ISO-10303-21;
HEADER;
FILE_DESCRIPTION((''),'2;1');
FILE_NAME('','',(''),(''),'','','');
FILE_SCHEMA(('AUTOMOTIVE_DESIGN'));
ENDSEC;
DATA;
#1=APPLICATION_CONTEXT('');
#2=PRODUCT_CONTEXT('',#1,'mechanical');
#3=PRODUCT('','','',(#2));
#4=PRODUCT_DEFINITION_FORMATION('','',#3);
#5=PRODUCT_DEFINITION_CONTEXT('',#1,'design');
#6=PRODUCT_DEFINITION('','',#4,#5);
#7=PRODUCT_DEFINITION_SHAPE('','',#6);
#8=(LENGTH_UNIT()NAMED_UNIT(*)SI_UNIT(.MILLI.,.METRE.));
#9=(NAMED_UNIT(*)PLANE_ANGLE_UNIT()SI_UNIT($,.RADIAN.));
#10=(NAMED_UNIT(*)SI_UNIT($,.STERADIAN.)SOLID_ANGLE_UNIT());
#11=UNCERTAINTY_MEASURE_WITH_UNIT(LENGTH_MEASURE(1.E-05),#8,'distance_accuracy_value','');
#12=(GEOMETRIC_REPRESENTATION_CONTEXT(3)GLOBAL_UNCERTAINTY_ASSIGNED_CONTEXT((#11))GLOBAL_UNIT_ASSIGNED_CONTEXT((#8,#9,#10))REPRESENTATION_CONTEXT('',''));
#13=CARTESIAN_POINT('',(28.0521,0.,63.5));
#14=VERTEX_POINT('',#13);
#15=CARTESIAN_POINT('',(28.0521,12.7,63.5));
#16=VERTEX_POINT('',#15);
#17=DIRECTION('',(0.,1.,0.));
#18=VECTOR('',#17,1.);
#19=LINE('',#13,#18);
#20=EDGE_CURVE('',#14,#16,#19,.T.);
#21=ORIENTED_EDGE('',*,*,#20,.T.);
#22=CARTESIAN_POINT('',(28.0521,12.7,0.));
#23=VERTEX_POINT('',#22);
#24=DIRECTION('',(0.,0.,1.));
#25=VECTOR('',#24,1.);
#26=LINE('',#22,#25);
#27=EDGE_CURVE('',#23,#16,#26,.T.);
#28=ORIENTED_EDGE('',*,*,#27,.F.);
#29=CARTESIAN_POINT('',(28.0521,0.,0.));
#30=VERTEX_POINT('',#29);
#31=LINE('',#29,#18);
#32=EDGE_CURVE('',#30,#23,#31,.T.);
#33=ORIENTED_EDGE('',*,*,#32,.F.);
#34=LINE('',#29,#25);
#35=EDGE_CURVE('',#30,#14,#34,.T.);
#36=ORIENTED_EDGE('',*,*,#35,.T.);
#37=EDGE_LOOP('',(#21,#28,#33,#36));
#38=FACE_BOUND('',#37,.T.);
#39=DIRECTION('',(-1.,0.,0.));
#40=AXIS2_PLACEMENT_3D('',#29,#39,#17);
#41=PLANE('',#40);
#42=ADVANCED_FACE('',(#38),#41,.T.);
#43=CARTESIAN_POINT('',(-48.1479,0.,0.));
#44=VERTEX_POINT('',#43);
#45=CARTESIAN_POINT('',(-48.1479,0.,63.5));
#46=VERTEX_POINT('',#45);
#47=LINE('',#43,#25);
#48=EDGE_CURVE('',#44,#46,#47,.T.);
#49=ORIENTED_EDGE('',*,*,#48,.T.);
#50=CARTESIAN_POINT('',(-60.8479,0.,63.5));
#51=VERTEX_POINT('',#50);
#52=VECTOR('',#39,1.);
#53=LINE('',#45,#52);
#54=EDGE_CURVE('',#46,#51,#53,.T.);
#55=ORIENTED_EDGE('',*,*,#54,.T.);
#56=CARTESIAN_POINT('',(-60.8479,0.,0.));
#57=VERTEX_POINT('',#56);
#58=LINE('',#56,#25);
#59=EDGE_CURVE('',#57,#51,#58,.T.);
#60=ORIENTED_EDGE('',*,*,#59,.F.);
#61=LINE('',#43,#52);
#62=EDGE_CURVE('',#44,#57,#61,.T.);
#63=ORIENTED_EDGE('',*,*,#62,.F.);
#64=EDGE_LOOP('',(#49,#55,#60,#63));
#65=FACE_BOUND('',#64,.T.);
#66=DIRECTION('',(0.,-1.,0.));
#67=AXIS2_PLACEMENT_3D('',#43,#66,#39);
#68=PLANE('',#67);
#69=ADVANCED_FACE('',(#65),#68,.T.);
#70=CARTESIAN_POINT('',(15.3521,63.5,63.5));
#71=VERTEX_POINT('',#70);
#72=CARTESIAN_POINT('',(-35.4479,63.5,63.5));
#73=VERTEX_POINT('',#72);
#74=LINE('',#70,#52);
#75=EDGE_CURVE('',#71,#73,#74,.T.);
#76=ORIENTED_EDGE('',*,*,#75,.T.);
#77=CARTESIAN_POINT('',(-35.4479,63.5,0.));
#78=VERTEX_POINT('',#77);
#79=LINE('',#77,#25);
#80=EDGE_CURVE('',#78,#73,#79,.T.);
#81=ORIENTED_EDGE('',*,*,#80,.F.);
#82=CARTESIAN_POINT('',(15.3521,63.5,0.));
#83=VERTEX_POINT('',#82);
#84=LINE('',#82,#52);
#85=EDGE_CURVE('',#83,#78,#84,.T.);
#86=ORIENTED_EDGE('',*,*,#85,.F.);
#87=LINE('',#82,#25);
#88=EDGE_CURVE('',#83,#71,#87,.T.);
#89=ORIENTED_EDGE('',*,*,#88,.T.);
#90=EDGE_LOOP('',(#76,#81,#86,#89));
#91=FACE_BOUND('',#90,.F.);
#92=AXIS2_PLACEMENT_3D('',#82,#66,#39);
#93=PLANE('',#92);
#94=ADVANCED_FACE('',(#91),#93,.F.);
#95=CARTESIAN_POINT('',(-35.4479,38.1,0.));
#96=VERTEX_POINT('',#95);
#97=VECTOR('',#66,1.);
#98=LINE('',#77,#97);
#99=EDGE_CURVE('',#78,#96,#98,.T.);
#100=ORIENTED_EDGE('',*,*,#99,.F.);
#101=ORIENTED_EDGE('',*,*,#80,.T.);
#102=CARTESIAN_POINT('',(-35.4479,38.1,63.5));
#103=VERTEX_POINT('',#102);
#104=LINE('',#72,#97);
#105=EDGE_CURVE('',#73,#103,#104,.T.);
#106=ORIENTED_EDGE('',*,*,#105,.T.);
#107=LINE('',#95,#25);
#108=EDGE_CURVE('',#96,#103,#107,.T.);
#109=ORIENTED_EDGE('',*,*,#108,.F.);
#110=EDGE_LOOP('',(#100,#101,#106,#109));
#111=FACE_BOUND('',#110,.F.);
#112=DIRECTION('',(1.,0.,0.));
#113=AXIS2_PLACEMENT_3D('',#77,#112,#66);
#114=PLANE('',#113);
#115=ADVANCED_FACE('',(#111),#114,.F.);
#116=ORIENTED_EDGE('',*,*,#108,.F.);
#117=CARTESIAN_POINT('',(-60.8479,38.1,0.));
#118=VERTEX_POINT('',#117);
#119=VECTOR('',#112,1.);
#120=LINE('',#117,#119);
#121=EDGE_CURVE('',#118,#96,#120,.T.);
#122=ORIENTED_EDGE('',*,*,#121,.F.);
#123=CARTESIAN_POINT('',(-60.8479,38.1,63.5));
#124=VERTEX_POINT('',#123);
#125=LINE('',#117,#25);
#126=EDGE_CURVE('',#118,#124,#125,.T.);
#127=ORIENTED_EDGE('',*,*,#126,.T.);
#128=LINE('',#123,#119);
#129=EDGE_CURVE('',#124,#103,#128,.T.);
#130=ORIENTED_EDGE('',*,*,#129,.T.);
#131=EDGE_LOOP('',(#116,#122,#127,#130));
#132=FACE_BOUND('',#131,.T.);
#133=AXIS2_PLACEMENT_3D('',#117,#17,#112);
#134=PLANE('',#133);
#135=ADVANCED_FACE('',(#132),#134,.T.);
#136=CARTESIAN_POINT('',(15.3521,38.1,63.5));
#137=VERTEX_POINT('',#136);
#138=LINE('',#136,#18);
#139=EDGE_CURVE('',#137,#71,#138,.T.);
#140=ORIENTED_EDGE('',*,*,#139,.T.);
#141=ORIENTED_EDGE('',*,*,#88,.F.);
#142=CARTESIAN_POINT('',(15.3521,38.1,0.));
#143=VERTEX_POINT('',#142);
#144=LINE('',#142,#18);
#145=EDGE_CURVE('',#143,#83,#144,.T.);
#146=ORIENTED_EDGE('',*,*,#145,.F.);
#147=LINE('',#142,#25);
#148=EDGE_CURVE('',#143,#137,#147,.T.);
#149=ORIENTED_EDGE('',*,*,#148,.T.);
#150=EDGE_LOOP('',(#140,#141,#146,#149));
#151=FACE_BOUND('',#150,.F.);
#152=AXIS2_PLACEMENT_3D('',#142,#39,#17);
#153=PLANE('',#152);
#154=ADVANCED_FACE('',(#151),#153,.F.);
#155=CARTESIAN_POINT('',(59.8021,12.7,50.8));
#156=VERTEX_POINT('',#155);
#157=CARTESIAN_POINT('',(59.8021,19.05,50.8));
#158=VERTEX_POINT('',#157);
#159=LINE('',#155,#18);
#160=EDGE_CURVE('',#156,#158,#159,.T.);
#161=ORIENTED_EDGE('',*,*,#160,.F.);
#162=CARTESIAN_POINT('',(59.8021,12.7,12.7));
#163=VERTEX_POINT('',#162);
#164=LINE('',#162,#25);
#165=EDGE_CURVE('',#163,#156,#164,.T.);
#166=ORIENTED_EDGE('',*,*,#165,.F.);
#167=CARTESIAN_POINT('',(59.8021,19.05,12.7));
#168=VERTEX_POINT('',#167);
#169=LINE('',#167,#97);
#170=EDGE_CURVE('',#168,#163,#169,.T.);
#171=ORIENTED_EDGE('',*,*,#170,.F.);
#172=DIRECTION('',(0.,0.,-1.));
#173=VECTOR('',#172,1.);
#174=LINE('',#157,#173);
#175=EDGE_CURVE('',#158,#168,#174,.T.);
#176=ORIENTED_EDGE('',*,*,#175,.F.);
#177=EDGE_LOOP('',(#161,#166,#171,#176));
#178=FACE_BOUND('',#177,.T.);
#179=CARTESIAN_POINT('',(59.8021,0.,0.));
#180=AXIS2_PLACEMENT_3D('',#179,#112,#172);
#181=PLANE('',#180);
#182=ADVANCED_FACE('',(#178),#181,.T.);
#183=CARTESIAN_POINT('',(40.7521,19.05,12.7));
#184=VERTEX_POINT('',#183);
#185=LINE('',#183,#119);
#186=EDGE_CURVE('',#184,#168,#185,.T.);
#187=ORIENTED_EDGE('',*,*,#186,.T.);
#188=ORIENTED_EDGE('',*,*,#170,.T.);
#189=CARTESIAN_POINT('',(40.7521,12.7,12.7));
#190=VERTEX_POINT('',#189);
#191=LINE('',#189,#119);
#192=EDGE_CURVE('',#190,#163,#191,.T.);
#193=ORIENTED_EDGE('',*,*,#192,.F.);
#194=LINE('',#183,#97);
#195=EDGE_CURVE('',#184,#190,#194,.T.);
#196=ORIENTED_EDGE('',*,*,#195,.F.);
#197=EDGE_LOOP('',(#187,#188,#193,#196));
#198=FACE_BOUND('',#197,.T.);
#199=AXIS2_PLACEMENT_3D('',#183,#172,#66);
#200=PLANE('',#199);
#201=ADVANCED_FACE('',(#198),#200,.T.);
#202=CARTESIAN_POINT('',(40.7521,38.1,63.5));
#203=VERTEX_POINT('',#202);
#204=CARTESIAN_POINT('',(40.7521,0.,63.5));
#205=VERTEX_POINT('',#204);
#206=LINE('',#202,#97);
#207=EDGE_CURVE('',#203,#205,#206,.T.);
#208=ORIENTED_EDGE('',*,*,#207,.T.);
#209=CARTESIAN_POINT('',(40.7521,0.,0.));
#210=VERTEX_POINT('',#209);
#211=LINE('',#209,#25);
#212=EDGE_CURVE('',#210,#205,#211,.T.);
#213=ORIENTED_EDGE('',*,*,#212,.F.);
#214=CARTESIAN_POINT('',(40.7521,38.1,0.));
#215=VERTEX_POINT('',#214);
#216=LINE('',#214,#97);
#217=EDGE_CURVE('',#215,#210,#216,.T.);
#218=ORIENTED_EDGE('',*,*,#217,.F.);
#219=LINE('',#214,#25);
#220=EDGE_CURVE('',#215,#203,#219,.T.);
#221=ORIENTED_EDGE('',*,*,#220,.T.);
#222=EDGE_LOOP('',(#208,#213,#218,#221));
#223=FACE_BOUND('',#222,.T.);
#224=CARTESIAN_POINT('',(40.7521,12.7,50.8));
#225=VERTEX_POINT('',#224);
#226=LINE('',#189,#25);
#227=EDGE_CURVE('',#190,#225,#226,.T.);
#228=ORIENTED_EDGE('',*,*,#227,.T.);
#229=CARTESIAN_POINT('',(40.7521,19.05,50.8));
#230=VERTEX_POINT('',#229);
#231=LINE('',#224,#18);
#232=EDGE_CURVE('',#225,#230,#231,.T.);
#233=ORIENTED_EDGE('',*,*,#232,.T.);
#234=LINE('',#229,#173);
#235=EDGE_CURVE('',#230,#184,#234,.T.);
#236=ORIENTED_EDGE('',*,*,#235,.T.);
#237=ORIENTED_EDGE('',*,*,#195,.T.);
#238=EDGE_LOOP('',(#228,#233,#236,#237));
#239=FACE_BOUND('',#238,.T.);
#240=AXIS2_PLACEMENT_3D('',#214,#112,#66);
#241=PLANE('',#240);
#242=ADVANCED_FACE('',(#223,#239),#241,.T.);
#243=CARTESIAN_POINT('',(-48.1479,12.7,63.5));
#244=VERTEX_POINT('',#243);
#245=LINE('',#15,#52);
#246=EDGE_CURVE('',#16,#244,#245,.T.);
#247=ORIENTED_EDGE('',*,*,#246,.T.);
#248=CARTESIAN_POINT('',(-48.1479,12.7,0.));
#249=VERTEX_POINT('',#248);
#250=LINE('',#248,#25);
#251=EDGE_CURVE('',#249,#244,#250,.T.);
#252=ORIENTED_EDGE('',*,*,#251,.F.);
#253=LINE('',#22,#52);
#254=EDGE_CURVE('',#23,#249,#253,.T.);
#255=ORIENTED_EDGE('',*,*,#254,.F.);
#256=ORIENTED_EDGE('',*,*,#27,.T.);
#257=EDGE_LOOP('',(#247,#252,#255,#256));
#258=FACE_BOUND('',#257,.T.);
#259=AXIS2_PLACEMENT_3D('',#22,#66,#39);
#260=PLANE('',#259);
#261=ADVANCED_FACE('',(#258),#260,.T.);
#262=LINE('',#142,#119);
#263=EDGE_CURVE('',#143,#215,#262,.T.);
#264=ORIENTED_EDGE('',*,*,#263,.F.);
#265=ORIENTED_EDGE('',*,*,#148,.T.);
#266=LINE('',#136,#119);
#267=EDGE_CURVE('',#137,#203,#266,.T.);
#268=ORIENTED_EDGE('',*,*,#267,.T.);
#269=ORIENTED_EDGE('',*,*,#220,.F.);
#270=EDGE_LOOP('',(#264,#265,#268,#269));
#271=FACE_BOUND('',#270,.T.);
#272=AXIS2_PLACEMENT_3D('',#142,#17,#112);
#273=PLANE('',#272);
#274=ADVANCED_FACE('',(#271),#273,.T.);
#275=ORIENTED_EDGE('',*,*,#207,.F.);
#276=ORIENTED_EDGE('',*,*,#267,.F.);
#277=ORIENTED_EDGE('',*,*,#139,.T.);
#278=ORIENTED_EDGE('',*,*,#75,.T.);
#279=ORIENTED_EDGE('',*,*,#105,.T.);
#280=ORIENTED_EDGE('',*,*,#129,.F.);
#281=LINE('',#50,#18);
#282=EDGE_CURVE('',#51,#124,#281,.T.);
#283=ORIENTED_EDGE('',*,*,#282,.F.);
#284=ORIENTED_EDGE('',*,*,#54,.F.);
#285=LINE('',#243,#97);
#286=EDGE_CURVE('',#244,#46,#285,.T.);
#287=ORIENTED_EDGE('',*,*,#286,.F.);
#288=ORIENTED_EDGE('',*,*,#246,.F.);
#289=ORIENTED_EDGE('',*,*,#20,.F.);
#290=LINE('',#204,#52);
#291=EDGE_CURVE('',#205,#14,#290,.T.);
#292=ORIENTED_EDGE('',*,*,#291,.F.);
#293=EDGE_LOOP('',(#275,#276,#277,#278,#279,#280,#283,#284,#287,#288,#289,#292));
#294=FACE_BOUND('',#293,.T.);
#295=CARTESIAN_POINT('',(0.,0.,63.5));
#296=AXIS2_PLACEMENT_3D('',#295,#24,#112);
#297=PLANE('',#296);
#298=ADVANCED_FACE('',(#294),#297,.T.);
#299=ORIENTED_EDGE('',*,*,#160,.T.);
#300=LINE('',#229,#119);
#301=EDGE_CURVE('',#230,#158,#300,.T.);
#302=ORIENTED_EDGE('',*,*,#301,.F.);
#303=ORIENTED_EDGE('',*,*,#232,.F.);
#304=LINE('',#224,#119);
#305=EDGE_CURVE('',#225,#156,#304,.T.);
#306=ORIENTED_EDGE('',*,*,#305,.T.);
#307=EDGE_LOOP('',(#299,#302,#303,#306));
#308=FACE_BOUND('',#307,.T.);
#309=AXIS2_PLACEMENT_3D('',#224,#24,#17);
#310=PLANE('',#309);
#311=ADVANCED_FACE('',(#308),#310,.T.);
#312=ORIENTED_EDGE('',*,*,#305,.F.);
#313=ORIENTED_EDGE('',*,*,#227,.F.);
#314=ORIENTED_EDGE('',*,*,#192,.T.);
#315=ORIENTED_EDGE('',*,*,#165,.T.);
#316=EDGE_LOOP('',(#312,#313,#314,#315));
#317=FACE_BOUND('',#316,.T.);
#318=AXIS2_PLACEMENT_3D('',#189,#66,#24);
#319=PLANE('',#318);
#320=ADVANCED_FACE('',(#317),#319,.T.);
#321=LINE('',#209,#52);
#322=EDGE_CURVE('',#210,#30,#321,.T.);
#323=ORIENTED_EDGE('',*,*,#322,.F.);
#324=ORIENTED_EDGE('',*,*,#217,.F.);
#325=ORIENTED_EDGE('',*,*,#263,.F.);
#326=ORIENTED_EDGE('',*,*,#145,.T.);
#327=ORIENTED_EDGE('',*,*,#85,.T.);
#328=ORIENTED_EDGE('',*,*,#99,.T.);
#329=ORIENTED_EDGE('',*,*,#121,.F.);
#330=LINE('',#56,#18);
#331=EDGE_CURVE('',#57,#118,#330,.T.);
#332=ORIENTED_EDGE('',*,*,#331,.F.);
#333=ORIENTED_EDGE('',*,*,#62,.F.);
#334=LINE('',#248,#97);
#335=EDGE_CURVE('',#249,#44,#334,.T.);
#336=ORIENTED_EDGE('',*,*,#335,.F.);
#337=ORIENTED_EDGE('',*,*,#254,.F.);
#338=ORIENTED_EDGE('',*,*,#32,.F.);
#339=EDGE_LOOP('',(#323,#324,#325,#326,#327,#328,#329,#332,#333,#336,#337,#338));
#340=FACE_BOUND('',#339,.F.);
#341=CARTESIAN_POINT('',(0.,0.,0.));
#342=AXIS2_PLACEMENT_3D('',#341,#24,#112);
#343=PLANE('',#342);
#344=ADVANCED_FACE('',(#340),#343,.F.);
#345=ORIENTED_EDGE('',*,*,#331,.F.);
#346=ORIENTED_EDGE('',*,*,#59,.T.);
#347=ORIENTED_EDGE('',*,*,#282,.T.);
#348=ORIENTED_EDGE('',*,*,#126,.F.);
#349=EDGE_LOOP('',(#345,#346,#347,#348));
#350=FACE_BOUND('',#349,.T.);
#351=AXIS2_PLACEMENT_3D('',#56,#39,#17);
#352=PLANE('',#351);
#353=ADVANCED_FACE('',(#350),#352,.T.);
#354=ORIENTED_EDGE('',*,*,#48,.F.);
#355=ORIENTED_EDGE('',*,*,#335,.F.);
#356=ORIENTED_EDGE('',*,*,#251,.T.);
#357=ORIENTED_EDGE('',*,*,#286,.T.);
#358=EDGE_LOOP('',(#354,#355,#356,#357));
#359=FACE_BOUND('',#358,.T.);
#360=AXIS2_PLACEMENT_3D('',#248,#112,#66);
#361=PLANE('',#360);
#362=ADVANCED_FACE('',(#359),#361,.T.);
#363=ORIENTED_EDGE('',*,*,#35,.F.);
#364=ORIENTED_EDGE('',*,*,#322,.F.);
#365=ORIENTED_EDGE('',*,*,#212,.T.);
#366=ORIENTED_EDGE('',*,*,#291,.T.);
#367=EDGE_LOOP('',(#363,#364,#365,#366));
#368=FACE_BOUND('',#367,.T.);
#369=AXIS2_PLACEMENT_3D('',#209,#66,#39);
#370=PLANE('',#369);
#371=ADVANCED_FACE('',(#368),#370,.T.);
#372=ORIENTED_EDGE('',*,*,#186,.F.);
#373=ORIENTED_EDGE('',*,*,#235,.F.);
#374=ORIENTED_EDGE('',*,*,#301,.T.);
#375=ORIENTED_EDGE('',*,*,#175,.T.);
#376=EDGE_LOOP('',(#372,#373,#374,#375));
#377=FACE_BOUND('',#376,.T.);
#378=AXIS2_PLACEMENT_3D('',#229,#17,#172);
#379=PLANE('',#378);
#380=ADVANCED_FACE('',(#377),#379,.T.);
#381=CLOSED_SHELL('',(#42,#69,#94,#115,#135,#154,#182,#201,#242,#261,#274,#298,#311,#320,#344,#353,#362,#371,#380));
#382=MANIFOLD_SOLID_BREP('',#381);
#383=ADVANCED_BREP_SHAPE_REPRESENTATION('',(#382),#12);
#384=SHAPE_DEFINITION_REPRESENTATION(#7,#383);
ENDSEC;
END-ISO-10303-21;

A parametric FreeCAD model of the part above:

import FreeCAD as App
import Part
import Sketcher
from FreeCAD import Vector
Q = App.Units.Quantity

doc = App.newDocument("Part")
params = doc.addObject("Spreadsheet::Sheet", "Params")
for row, (alias, value) in enumerate([
    ("sketch1_width", "1 in"),
    ("sketch1_width2", "2 in"),
    ("sketch1_width3", "0.5 in"),
    ("sketch1_height", "1.5 in"),
    ("pad1_length", "2.5 in"),
    ("sketch2_height", "1.5 in"),
    ("sketch2_width", "0.25 in"),
    ("pad2_length", "0.75 in"),
], start=1):
    params.set(f"A{row}", alias)
    params.set(f"B{row}", "=" + value)
    params.setAlias(f"B{row}", alias)

body = doc.addObject("PartDesign::Body", "Body")

sketch1 = doc.addObject("Sketcher::SketchObject", "Sketch")
body.addObject(sketch1)
sketch1.AttachmentSupport = (doc.XY_Plane, [""])
sketch1.MapMode = "FlatFace"
sketch1.addGeometry(Part.LineSegment(Vector(41, 0, 0), Vector(41, 38, 0)), False)
sketch1.addGeometry(Part.LineSegment(Vector(41, 38, 0), Vector(15, 38, 0)), False)
sketch1.addGeometry(Part.LineSegment(Vector(15, 38, 0), Vector(15, 64, 0)), False)
sketch1.addGeometry(Part.LineSegment(Vector(15, 64, 0), Vector(-35, 64, 0)), False)
sketch1.addGeometry(Part.LineSegment(Vector(-35, 64, 0), Vector(-35, 38, 0)), False)
sketch1.addGeometry(Part.LineSegment(Vector(-35, 38, 0), Vector(-61, 38, 0)), False)
sketch1.addGeometry(Part.LineSegment(Vector(-61, 38, 0), Vector(-61, 0, 0)), False)
sketch1.addGeometry(Part.LineSegment(Vector(-61, 0, 0), Vector(-48, 0, 0)), False)
sketch1.addGeometry(Part.LineSegment(Vector(-48, 0, 0), Vector(-48, 13, 0)), False)
sketch1.addGeometry(Part.LineSegment(Vector(-48, 13, 0), Vector(28, 13, 0)), False)
sketch1.addGeometry(Part.LineSegment(Vector(28, 13, 0), Vector(28, 0, 0)), False)
sketch1.addGeometry(Part.LineSegment(Vector(28, 0, 0), Vector(41, 0, 0)), False)
sketch1.addConstraint(Sketcher.Constraint("Coincident", 0, 2, 1, 1))
sketch1.addConstraint(Sketcher.Constraint("Coincident", 1, 2, 2, 1))
sketch1.addConstraint(Sketcher.Constraint("Coincident", 2, 2, 3, 1))
sketch1.addConstraint(Sketcher.Constraint("Coincident", 3, 2, 4, 1))
sketch1.addConstraint(Sketcher.Constraint("Coincident", 4, 2, 5, 1))
sketch1.addConstraint(Sketcher.Constraint("Coincident", 5, 2, 6, 1))
sketch1.addConstraint(Sketcher.Constraint("Coincident", 6, 2, 7, 1))
sketch1.addConstraint(Sketcher.Constraint("Coincident", 7, 2, 8, 1))
sketch1.addConstraint(Sketcher.Constraint("Coincident", 8, 2, 9, 1))
sketch1.addConstraint(Sketcher.Constraint("Coincident", 9, 2, 10, 1))
sketch1.addConstraint(Sketcher.Constraint("Coincident", 10, 2, 11, 1))
sketch1.addConstraint(Sketcher.Constraint("Coincident", 11, 2, 0, 1))
sketch1.addConstraint(Sketcher.Constraint("Vertical", 0))
sketch1.addConstraint(Sketcher.Constraint("Horizontal", 1))
sketch1.addConstraint(Sketcher.Constraint("Vertical", 2))
sketch1.addConstraint(Sketcher.Constraint("Horizontal", 3))
sketch1.addConstraint(Sketcher.Constraint("Vertical", 4))
sketch1.addConstraint(Sketcher.Constraint("Horizontal", 5))
sketch1.addConstraint(Sketcher.Constraint("Vertical", 6))
sketch1.addConstraint(Sketcher.Constraint("Horizontal", 7))
sketch1.addConstraint(Sketcher.Constraint("Vertical", 8))
sketch1.addConstraint(Sketcher.Constraint("Horizontal", 9))
sketch1.addConstraint(Sketcher.Constraint("Vertical", 10))
sketch1.addConstraint(Sketcher.Constraint("Horizontal", 11))
sketch1.addConstraint(Sketcher.Constraint("PointOnObject", 6, 2, -1))
sketch1.addConstraint(Sketcher.Constraint("PointOnObject", 10, 2, -1))
sketch1.addConstraint(Sketcher.Constraint("Horizontal", 1, 2, 4, 2))
sketch1.addConstraint(Sketcher.Constraint("Equal", 1, 5))
sketch1.addConstraint(Sketcher.Constraint("Equal", 7, 11))
sketch1.addConstraint(Sketcher.Constraint("Equal", 5, 2))
sketch1.addConstraint(Sketcher.Constraint("Equal", 11, 8))
sketch1.addConstraint(Sketcher.Constraint("DistanceX", 1, 2, 1, 1, Q("1 in")))
sketch1.addConstraint(Sketcher.Constraint("DistanceX", 3, 2, 3, 1, Q("2 in")))
sketch1.addConstraint(Sketcher.Constraint("DistanceX", 7, 1, 7, 2, Q("0.5 in")))
sketch1.addConstraint(Sketcher.Constraint("DistanceY", 0, 1, 0, 2, Q("1.5 in")))
sketch1.addConstraint(Sketcher.Constraint("DistanceX", -1, 1, 0, 2, Q("1.6044094 in")))
sketch1.setExpression("Constraints[31]", "Params.sketch1_width")
sketch1.setExpression("Constraints[32]", "Params.sketch1_width2")
sketch1.setExpression("Constraints[33]", "Params.sketch1_width3")
sketch1.setExpression("Constraints[34]", "Params.sketch1_height")
pad1 = doc.addObject("PartDesign::Pad", "Pad")
body.addObject(pad1)
pad1.Profile = sketch1
pad1.setExpression("Length", "Params.pad1_length")

sketch2 = doc.addObject("Sketcher::SketchObject", "Sketch001")
body.addObject(sketch2)
sketch2.AttachmentSupport = (doc.YZ_Plane, [""])
sketch2.MapMode = "FlatFace"
sketch2.AttachmentOffset = App.Placement(Vector(0, 0, 40.7521), App.Rotation())
sketch2.addGeometry(Part.LineSegment(Vector(19, 13, 0), Vector(19, 51, 0)), False)
sketch2.addGeometry(Part.LineSegment(Vector(19, 51, 0), Vector(13, 51, 0)), False)
sketch2.addGeometry(Part.LineSegment(Vector(13, 51, 0), Vector(13, 13, 0)), False)
sketch2.addGeometry(Part.LineSegment(Vector(13, 13, 0), Vector(19, 13, 0)), False)
sketch2.addConstraint(Sketcher.Constraint("Coincident", 0, 2, 1, 1))
sketch2.addConstraint(Sketcher.Constraint("Coincident", 1, 2, 2, 1))
sketch2.addConstraint(Sketcher.Constraint("Coincident", 2, 2, 3, 1))
sketch2.addConstraint(Sketcher.Constraint("Coincident", 3, 2, 0, 1))
sketch2.addConstraint(Sketcher.Constraint("Vertical", 0))
sketch2.addConstraint(Sketcher.Constraint("Horizontal", 1))
sketch2.addConstraint(Sketcher.Constraint("Vertical", 2))
sketch2.addConstraint(Sketcher.Constraint("Horizontal", 3))
sketch2.addConstraint(Sketcher.Constraint("DistanceY", 0, 1, 0, 2, Q("1.5 in")))
sketch2.addConstraint(Sketcher.Constraint("DistanceX", 1, 2, 1, 1, Q("0.25 in")))
sketch2.addConstraint(Sketcher.Constraint("DistanceX", -1, 1, 1, 2, Q("0.5 in")))
sketch2.addConstraint(Sketcher.Constraint("DistanceY", -1, 1, 2, 2, Q("0.5 in")))
sketch2.setExpression("Constraints[8]", "Params.sketch2_height")
sketch2.setExpression("Constraints[9]", "Params.sketch2_width")
pad2 = doc.addObject("PartDesign::Pad", "Pad001")
body.addObject(pad2)
pad2.Profile = sketch2
pad2.setExpression("Length", "Params.pad2_length")

doc.recompute()
